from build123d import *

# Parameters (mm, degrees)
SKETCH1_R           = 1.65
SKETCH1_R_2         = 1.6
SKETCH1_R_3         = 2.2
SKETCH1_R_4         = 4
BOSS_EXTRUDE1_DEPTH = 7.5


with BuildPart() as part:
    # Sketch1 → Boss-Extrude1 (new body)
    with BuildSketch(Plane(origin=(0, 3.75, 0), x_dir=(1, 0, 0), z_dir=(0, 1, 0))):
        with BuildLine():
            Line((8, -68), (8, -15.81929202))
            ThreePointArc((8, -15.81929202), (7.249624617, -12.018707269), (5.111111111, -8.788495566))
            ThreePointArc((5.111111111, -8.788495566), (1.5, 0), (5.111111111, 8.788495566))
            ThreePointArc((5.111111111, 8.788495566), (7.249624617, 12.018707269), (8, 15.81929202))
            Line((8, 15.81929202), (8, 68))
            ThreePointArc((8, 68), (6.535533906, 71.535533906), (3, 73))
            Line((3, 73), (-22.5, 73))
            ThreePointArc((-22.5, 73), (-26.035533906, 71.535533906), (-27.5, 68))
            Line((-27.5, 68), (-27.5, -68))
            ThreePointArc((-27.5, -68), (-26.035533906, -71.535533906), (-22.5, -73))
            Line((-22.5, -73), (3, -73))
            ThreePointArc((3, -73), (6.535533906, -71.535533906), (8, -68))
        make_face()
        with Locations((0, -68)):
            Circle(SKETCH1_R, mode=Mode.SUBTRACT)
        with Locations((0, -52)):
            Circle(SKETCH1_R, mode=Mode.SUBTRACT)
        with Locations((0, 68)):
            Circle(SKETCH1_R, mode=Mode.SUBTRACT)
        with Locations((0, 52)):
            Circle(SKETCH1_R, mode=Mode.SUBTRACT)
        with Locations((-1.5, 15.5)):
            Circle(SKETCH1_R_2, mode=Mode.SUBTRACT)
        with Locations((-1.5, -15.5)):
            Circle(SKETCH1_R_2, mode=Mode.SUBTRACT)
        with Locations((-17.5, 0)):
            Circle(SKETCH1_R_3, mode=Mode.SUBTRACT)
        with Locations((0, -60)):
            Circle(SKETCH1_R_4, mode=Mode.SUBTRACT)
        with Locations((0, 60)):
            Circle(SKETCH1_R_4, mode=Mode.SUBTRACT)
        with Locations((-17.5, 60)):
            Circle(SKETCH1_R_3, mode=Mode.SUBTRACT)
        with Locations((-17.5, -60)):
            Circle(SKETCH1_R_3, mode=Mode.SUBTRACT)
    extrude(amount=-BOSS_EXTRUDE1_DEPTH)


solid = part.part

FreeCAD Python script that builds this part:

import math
import FreeCAD as App
import Part
import Sketcher

doc = App.newDocument("Part")
body = doc.addObject("PartDesign::Body", "Body")

# Sketch on XZ plane
sketch1 = body.newObject("Sketcher::SketchObject", "Sketch")
sketch1.AttachmentSupport = (doc.getObject("XZ_Plane"), [""])
sketch1.MapMode = "FlatFace"
sketch1.AttachmentOffset = App.Placement(App.Vector(0, 0, -3.75), App.Rotation())
sketch1.addGeometry(Part.LineSegment(App.Vector(8, 68, 0), App.Vector(8, 15.8, 0)), False)
sketch1.addGeometry(Part.ArcOfCircle(Part.Circle(App.Vector(-2, 15.8, 0), App.Vector(0, 0, 1), 10), math.radians(-45), math.radians(0)), False)
sketch1.addGeometry(Part.ArcOfCircle(Part.Circle(App.Vector(14, 0, 0), App.Vector(0, 0, 1), 12.5), math.radians(135), math.radians(225)), False)
sketch1.addGeometry(Part.ArcOfCircle(Part.Circle(App.Vector(-2, -15.8, 0), App.Vector(0, 0, 1), 10), math.radians(0), math.radians(45)), False)
sketch1.addGeometry(Part.LineSegment(App.Vector(8, -15.8, 0), App.Vector(8, -68, 0)), False)
sketch1.addGeometry(Part.ArcOfCircle(Part.Circle(App.Vector(3, -68, 0), App.Vector(0, 0, 1), 5), math.radians(-90), math.radians(0)), False)
sketch1.addGeometry(Part.LineSegment(App.Vector(3, -73, 0), App.Vector(-22.5, -73, 0)), False)
sketch1.addGeometry(Part.ArcOfCircle(Part.Circle(App.Vector(-22.5, -68, 0), App.Vector(0, 0, 1), 5), math.radians(180), math.radians(270)), False)
sketch1.addGeometry(Part.LineSegment(App.Vector(-27.5, -68, 0), App.Vector(-27.5, 68, 0)), False)
sketch1.addGeometry(Part.ArcOfCircle(Part.Circle(App.Vector(-22.5, 68, 0), App.Vector(0, 0, 1), 5), math.radians(90), math.radians(180)), False)
sketch1.addGeometry(Part.LineSegment(App.Vector(-22.5, 73, 0), App.Vector(3, 73, 0)), False)
sketch1.addGeometry(Part.ArcOfCircle(Part.Circle(App.Vector(3, 68, 0), App.Vector(0, 0, 1), 5), math.radians(0), math.radians(90)), False)
sketch1.addGeometry(Part.Circle(App.Vector(-17.5, 60, 0), App.Vector(0, 0, 1), 2.2), False)
sketch1.addGeometry(Part.Circle(App.Vector(0, 68, 0), App.Vector(0, 0, 1), 1.6), False)
sketch1.addGeometry(Part.Circle(App.Vector(0, 60, 0), App.Vector(0, 0, 1), 4), False)
sketch1.addGeometry(Part.Circle(App.Vector(0, 52, 0), App.Vector(0, 0, 1), 1.6), False)
sketch1.addGeometry(Part.Circle(App.Vector(-1.5, 15.5, 0), App.Vector(0, 0, 1), 1.6), False)
sketch1.addGeometry(Part.Circle(App.Vector(-17.5, 0, 0), App.Vector(0, 0, 1), 2.2), False)
sketch1.addGeometry(Part.Circle(App.Vector(-17.5, -60, 0), App.Vector(0, 0, 1), 2.2), False)
sketch1.addGeometry(Part.Circle(App.Vector(-1.5, -15.5, 0), App.Vector(0, 0, 1), 1.6), False)
sketch1.addGeometry(Part.Circle(App.Vector(0, -52, 0), App.Vector(0, 0, 1), 1.6), False)
sketch1.addGeometry(Part.Circle(App.Vector(0, -60, 0), App.Vector(0, 0, 1), 4), False)
sketch1.addGeometry(Part.Circle(App.Vector(0, -68, 0), App.Vector(0, 0, 1), 1.6), False)
sketch1.addConstraint(Sketcher.Constraint("Tangent", 0, 2, 1, 2))
sketch1.addConstraint(Sketcher.Constraint("Tangent", 1, 1, 2, 1))
sketch1.addConstraint(Sketcher.Constraint("Tangent", 2, 2, 3, 2))
sketch1.addConstraint(Sketcher.Constraint("Tangent", 3, 1, 4, 1))
sketch1.addConstraint(Sketcher.Constraint("Tangent", 4, 2, 5, 2))
sketch1.addConstraint(Sketcher.Constraint("Tangent", 5, 1, 6, 1))
sketch1.addConstraint(Sketcher.Constraint("Tangent", 6, 2, 7, 2))
sketch1.addConstraint(Sketcher.Constraint("Tangent", 7, 1, 8, 1))
sketch1.addConstraint(Sketcher.Constraint("Tangent", 8, 2, 9, 2))
sketch1.addConstraint(Sketcher.Constraint("Tangent", 9, 1, 10, 1))
sketch1.addConstraint(Sketcher.Constraint("Tangent", 10, 2, 11, 2))
sketch1.addConstraint(Sketcher.Constraint("Tangent", 11, 1, 0, 1))
sketch1.addConstraint(Sketcher.Constraint("Vertical", 0))
sketch1.addConstraint(Sketcher.Constraint("Vertical", 4))
sketch1.addConstraint(Sketcher.Constraint("Horizontal", 6))
sketch1.addConstraint(Sketcher.Constraint("Vertical", 8))
sketch1.addConstraint(Sketcher.Constraint("Horizontal", 10))
sketch1.addConstraint(Sketcher.Constraint("Equal", 1, 3))
sketch1.addConstraint(Sketcher.Constraint("Equal", 5, 7))
sketch1.addConstraint(Sketcher.Constraint("Equal", 7, 9))
sketch1.addConstraint(Sketcher.Constraint("Equal", 9, 11))
sketch1.addConstraint(Sketcher.Constraint("Equal", 13, 15))
sketch1.addConstraint(Sketcher.Constraint("Equal", 12, 17))
sketch1.addConstraint(Sketcher.Constraint("Equal", 17, 18))
sketch1.addConstraint(Sketcher.Constraint("Equal", 16, 19))
sketch1.addConstraint(Sketcher.Constraint("Equal", 15, 20))
sketch1.addConstraint(Sketcher.Constraint("Equal", 14, 21))
sketch1.addConstraint(Sketcher.Constraint("Equal", 20, 22))
sketch1.addConstraint(Sketcher.Constraint("Symmetric", 15, 3, 20, 3, -1, 1))
sketch1.addConstraint(Sketcher.Constraint("Symmetric", 14, 3, 21, 3, -1, 1))
sketch1.addConstraint(Sketcher.Constraint("Symmetric", 13, 3, 22, 3, -1, 1))
sketch1.addConstraint(Sketcher.Constraint("Symmetric", 1, 3, 3, 3, -1))
sketch1.addConstraint(Sketcher.Constraint("Symmetric", 12, 3, 18, 3, -1))
sketch1.addConstraint(Sketcher.Constraint("Symmetric", 16, 3, 19, 3, -1))
sketch1.addConstraint(Sketcher.Constraint("PointOnObject", 13, 3, -2))
sketch1.addConstraint(Sketcher.Constraint("PointOnObject", 14, 3, -2))
sketch1.addConstraint(Sketcher.Constraint("PointOnObject", 15, 3, -2))
sketch1.addConstraint(Sketcher.Constraint("PointOnObject", 17, 3, -1))
sketch1.addConstraint(Sketcher.Constraint("Horizontal", 11, 3, 13, 3))
sketch1.addConstraint(Sketcher.Constraint("Horizontal", 12, 3, 14, 3))
sketch1.addConstraint(Sketcher.Constraint("Horizontal", 7, 3, 22, 3))
sketch1.addConstraint(Sketcher.Constraint("Vertical", 12, 3, 17, 3))
sketch1.addConstraint(Sketcher.Constraint("Diameter", 14, 8.0))
sketch1.addConstraint(Sketcher.Constraint("Radius", 1, 10.0))
sketch1.addConstraint(Sketcher.Constraint("Radius", 5, 5.0))
sketch1.addConstraint(Sketcher.Constraint("Diameter", 12, 4.4))
sketch1.addConstraint(Sketcher.Constraint("Diameter", 13, 3.3))
sketch1.addConstraint(Sketcher.Constraint("Diameter", 16, 3.2))
sketch1.addConstraint(Sketcher.Constraint("Radius", 2, 12.5))
sketch1.addConstraint(Sketcher.Constraint("DistanceY", 8, 1, 8, 2, 136.0))
sketch1.addConstraint(Sketcher.Constraint("DistanceX", 6, 2, 6, 1, 25.5))
sketch1.addConstraint(Sketcher.Constraint("DistanceX", 1, 3, -1, 1, 2.0))
sketch1.addConstraint(Sketcher.Constraint("DistanceX", -1, 1, 2, 3, 14.0))
sketch1.addConstraint(Sketcher.Constraint("DistanceY", -1, 1, 12, 3, 60.0))
sketch1.addConstraint(Sketcher.Constraint("DistanceY", -1, 1, 15, 3, 52.0))
sketch1.addConstraint(Sketcher.Constraint("DistanceX", 9, 3, 12, 3, 5.0))
sketch1.addConstraint(Sketcher.Constraint("DistanceX", 17, 3, 16, 3, 16.0))
sketch1.addConstraint(Sketcher.Constraint("DistanceY", 19, 3, 16, 3, 31.0))
pad1 = body.newObject("PartDesign::Pad", "Pad")
pad1.Profile = sketch1
pad1.Length = 7.5

doc.recompute()
